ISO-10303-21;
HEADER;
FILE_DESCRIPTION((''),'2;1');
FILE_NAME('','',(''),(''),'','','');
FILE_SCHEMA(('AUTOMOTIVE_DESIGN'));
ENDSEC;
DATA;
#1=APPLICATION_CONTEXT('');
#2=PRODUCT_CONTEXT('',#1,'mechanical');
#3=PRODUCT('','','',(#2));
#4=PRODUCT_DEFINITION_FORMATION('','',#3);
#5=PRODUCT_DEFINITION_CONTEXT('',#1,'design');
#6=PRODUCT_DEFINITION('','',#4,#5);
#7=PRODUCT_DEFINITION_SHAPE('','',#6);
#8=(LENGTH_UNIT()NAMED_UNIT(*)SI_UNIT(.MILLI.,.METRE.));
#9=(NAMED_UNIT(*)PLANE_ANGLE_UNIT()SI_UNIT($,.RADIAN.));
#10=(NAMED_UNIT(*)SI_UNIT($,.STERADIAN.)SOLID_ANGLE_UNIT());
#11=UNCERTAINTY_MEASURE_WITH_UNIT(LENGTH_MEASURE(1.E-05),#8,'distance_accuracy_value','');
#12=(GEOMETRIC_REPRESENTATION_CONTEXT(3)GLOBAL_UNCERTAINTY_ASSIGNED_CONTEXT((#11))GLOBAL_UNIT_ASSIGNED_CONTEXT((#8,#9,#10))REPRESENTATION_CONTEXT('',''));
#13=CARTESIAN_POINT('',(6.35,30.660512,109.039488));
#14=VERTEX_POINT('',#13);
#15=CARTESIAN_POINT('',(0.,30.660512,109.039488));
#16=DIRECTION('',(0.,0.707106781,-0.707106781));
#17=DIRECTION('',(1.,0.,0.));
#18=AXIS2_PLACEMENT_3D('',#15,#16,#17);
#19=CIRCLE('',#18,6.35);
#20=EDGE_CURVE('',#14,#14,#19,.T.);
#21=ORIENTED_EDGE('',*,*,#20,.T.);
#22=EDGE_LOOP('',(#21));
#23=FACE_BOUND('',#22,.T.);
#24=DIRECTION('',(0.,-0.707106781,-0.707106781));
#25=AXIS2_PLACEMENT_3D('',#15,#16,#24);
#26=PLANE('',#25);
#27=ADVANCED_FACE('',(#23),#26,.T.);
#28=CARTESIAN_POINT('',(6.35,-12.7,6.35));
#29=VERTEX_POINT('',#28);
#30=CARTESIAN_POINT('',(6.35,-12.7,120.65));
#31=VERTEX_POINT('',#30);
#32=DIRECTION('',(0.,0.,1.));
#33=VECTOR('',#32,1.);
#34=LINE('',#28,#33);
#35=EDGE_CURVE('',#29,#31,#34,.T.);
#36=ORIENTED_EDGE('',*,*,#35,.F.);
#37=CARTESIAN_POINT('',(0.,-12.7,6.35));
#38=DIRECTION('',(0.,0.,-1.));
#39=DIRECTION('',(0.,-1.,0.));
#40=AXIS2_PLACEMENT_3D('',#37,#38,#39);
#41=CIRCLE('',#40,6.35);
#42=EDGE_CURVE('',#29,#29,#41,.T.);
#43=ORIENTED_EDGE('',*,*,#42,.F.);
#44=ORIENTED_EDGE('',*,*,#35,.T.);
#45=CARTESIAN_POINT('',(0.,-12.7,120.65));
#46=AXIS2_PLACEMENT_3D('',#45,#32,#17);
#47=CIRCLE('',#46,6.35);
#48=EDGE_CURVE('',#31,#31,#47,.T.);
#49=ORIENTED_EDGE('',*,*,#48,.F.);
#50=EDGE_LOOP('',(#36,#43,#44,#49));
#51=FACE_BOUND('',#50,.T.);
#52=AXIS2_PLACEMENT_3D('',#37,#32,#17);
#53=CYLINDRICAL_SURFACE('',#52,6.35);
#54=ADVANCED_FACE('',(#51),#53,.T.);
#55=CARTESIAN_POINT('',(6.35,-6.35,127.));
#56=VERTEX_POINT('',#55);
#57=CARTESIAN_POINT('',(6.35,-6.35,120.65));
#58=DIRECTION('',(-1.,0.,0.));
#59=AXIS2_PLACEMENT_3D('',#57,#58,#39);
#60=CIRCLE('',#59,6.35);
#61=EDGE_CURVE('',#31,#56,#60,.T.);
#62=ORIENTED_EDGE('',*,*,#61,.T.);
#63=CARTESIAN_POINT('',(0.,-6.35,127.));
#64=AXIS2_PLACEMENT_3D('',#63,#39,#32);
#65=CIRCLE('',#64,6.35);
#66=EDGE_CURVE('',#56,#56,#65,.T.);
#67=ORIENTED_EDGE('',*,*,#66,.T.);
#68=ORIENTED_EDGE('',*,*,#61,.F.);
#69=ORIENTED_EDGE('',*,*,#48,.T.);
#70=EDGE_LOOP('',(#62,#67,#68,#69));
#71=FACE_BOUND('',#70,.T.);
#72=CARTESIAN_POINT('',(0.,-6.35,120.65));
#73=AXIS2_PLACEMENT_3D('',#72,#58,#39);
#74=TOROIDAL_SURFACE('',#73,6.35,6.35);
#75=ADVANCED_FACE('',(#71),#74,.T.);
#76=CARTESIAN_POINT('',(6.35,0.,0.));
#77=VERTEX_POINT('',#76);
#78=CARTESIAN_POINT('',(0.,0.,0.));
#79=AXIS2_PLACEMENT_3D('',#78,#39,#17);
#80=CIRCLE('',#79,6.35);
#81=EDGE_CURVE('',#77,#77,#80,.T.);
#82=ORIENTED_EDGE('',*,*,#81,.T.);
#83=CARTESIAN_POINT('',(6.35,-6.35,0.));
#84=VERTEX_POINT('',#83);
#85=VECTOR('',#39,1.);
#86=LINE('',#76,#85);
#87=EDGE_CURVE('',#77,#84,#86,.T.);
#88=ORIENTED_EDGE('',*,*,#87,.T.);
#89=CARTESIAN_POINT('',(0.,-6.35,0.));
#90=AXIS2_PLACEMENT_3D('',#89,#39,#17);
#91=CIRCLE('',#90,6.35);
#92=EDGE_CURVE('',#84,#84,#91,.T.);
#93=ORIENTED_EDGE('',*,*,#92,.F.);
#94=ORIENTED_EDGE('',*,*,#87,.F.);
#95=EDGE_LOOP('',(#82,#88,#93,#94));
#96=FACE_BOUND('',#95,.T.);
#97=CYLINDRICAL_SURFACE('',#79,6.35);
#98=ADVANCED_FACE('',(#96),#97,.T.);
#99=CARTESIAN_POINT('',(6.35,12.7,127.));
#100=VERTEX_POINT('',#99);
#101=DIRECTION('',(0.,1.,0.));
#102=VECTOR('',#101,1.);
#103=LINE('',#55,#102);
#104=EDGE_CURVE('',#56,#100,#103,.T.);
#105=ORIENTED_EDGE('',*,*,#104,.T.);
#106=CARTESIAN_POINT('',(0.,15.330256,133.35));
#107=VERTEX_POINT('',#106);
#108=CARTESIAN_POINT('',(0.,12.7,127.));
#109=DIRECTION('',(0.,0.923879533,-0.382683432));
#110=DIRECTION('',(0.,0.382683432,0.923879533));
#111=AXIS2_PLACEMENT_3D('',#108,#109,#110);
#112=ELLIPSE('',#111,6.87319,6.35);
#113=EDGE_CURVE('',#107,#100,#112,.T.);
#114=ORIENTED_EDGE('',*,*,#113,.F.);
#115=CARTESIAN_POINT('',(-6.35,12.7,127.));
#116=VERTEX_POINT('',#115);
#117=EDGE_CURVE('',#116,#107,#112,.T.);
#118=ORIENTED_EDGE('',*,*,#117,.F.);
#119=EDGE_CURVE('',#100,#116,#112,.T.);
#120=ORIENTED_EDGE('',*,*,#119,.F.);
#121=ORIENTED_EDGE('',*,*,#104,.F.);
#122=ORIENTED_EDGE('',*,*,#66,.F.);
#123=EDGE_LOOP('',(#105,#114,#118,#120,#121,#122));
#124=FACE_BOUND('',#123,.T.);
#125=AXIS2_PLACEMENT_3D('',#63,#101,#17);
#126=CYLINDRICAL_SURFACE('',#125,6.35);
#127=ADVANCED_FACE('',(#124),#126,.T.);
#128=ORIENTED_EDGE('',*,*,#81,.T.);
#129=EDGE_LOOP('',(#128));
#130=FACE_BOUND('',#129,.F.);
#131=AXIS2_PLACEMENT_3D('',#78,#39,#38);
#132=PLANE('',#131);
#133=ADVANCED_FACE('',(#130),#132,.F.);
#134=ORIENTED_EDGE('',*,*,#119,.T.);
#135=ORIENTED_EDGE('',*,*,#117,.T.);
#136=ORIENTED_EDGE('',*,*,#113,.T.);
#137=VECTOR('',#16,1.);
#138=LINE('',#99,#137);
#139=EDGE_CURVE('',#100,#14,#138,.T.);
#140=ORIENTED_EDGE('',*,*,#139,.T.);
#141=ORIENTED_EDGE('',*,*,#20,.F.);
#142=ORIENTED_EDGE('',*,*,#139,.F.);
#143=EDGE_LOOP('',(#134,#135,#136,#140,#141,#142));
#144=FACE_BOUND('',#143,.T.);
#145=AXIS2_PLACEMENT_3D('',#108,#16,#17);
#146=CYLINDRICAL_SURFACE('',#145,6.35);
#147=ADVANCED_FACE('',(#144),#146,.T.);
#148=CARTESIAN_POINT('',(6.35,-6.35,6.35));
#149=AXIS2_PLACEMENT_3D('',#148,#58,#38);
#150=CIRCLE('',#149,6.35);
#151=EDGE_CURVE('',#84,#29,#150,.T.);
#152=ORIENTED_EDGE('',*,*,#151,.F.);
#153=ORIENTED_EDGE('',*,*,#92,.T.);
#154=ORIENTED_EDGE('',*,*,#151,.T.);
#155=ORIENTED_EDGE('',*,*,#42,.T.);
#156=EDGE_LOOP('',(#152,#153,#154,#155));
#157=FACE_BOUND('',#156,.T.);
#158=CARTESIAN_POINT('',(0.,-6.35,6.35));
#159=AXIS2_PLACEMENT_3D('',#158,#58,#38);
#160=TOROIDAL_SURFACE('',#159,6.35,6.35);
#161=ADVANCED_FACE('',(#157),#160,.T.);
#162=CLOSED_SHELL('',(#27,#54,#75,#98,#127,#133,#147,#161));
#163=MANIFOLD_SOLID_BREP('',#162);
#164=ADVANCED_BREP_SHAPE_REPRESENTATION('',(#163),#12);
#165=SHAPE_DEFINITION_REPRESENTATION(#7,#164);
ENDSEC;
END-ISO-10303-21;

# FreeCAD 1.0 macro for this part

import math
import FreeCAD as App
import Part
import Sketcher
from FreeCAD import Vector
Q = App.Units.Quantity

doc = App.newDocument("Part")
body = doc.addObject("PartDesign::Body", "Body")

sketch1 = body.newObject("Sketcher::SketchObject", "Sketch")
sketch1.AttachmentSupport = (doc.getObject("XZ_Plane"), [""])
sketch1.MapMode = "FlatFace"
sketch1.addGeometry(Part.Circle(Vector(0, 0, 0), Vector(0, 0, 1), 6.35), False)
sketch1.addConstraint([
    Sketcher.Constraint("Coincident", 0, 3, -1, 1),
    Sketcher.Constraint("Diameter", 0, Q("0.5 in")),
])

sketch2 = body.newObject("Sketcher::SketchObject", "Sketch001")
sketch2.AttachmentSupport = (doc.getObject("YZ_Plane"), [""])
sketch2.MapMode = "FlatFace"
sketch2.addGeometry([
    Part.LineSegment(Vector(0, 0, 0), Vector(-6.35, 0, 0)),
    Part.ArcOfCircle(Part.Circle(Vector(-6.35, 6.35, 0), Vector(0, 0, 1), 6.35), math.radians(180), math.radians(270)),
    Part.LineSegment(Vector(-12.7, 6.35, 0), Vector(-12.7, 120.65, 0)),
    Part.ArcOfCircle(Part.Circle(Vector(-6.35, 120.65, 0), Vector(0, 0, 1), 6.35), math.radians(90), math.radians(180)),
    Part.LineSegment(Vector(-6.35, 127, 0), Vector(12.7, 127, 0)),
    Part.LineSegment(Vector(12.7, 127, 0), Vector(30.660512, 109.039488, 0)),
], False)
sketch2.addConstraint([
    Sketcher.Constraint("Tangent", 0, 2, 1, 2),
    Sketcher.Constraint("Tangent", 1, 1, 2, 1),
    Sketcher.Constraint("Tangent", 2, 2, 3, 2),
    Sketcher.Constraint("Tangent", 3, 1, 4, 1),
    Sketcher.Constraint("Coincident", 4, 2, 5, 1),
    Sketcher.Constraint("Horizontal", 0),
    Sketcher.Constraint("Vertical", 2),
    Sketcher.Constraint("Horizontal", 4),
    Sketcher.Constraint("Coincident", 0, 1, -1, 1),
    Sketcher.Constraint("Equal", 1, 3),
    Sketcher.Constraint("Radius", 1, Q("0.25 in")),
    Sketcher.Constraint("Distance", 5, Q("1 in")),
    Sketcher.Constraint("DistanceY", 2, 1, 2, 2, Q("4.5 in")),
    Sketcher.Constraint("Angle", 5, Q("-45 deg")),
    Sketcher.Constraint("DistanceX", 2, 2, 4, 2, Q("1 in")),
    Sketcher.Constraint("DistanceX", 0, 2, 0, 1, Q("0.25 in")),
])
doc.recompute()

additivepipe = body.newObject("PartDesign::AdditivePipe", "AdditivePipe")
additivepipe.Profile = sketch1
additivepipe.Spine = (sketch2, ["Edge1", "Edge2", "Edge3", "Edge4", "Edge5", "Edge6"])
additivepipe.Transition = "Right corner"

doc.recompute()
